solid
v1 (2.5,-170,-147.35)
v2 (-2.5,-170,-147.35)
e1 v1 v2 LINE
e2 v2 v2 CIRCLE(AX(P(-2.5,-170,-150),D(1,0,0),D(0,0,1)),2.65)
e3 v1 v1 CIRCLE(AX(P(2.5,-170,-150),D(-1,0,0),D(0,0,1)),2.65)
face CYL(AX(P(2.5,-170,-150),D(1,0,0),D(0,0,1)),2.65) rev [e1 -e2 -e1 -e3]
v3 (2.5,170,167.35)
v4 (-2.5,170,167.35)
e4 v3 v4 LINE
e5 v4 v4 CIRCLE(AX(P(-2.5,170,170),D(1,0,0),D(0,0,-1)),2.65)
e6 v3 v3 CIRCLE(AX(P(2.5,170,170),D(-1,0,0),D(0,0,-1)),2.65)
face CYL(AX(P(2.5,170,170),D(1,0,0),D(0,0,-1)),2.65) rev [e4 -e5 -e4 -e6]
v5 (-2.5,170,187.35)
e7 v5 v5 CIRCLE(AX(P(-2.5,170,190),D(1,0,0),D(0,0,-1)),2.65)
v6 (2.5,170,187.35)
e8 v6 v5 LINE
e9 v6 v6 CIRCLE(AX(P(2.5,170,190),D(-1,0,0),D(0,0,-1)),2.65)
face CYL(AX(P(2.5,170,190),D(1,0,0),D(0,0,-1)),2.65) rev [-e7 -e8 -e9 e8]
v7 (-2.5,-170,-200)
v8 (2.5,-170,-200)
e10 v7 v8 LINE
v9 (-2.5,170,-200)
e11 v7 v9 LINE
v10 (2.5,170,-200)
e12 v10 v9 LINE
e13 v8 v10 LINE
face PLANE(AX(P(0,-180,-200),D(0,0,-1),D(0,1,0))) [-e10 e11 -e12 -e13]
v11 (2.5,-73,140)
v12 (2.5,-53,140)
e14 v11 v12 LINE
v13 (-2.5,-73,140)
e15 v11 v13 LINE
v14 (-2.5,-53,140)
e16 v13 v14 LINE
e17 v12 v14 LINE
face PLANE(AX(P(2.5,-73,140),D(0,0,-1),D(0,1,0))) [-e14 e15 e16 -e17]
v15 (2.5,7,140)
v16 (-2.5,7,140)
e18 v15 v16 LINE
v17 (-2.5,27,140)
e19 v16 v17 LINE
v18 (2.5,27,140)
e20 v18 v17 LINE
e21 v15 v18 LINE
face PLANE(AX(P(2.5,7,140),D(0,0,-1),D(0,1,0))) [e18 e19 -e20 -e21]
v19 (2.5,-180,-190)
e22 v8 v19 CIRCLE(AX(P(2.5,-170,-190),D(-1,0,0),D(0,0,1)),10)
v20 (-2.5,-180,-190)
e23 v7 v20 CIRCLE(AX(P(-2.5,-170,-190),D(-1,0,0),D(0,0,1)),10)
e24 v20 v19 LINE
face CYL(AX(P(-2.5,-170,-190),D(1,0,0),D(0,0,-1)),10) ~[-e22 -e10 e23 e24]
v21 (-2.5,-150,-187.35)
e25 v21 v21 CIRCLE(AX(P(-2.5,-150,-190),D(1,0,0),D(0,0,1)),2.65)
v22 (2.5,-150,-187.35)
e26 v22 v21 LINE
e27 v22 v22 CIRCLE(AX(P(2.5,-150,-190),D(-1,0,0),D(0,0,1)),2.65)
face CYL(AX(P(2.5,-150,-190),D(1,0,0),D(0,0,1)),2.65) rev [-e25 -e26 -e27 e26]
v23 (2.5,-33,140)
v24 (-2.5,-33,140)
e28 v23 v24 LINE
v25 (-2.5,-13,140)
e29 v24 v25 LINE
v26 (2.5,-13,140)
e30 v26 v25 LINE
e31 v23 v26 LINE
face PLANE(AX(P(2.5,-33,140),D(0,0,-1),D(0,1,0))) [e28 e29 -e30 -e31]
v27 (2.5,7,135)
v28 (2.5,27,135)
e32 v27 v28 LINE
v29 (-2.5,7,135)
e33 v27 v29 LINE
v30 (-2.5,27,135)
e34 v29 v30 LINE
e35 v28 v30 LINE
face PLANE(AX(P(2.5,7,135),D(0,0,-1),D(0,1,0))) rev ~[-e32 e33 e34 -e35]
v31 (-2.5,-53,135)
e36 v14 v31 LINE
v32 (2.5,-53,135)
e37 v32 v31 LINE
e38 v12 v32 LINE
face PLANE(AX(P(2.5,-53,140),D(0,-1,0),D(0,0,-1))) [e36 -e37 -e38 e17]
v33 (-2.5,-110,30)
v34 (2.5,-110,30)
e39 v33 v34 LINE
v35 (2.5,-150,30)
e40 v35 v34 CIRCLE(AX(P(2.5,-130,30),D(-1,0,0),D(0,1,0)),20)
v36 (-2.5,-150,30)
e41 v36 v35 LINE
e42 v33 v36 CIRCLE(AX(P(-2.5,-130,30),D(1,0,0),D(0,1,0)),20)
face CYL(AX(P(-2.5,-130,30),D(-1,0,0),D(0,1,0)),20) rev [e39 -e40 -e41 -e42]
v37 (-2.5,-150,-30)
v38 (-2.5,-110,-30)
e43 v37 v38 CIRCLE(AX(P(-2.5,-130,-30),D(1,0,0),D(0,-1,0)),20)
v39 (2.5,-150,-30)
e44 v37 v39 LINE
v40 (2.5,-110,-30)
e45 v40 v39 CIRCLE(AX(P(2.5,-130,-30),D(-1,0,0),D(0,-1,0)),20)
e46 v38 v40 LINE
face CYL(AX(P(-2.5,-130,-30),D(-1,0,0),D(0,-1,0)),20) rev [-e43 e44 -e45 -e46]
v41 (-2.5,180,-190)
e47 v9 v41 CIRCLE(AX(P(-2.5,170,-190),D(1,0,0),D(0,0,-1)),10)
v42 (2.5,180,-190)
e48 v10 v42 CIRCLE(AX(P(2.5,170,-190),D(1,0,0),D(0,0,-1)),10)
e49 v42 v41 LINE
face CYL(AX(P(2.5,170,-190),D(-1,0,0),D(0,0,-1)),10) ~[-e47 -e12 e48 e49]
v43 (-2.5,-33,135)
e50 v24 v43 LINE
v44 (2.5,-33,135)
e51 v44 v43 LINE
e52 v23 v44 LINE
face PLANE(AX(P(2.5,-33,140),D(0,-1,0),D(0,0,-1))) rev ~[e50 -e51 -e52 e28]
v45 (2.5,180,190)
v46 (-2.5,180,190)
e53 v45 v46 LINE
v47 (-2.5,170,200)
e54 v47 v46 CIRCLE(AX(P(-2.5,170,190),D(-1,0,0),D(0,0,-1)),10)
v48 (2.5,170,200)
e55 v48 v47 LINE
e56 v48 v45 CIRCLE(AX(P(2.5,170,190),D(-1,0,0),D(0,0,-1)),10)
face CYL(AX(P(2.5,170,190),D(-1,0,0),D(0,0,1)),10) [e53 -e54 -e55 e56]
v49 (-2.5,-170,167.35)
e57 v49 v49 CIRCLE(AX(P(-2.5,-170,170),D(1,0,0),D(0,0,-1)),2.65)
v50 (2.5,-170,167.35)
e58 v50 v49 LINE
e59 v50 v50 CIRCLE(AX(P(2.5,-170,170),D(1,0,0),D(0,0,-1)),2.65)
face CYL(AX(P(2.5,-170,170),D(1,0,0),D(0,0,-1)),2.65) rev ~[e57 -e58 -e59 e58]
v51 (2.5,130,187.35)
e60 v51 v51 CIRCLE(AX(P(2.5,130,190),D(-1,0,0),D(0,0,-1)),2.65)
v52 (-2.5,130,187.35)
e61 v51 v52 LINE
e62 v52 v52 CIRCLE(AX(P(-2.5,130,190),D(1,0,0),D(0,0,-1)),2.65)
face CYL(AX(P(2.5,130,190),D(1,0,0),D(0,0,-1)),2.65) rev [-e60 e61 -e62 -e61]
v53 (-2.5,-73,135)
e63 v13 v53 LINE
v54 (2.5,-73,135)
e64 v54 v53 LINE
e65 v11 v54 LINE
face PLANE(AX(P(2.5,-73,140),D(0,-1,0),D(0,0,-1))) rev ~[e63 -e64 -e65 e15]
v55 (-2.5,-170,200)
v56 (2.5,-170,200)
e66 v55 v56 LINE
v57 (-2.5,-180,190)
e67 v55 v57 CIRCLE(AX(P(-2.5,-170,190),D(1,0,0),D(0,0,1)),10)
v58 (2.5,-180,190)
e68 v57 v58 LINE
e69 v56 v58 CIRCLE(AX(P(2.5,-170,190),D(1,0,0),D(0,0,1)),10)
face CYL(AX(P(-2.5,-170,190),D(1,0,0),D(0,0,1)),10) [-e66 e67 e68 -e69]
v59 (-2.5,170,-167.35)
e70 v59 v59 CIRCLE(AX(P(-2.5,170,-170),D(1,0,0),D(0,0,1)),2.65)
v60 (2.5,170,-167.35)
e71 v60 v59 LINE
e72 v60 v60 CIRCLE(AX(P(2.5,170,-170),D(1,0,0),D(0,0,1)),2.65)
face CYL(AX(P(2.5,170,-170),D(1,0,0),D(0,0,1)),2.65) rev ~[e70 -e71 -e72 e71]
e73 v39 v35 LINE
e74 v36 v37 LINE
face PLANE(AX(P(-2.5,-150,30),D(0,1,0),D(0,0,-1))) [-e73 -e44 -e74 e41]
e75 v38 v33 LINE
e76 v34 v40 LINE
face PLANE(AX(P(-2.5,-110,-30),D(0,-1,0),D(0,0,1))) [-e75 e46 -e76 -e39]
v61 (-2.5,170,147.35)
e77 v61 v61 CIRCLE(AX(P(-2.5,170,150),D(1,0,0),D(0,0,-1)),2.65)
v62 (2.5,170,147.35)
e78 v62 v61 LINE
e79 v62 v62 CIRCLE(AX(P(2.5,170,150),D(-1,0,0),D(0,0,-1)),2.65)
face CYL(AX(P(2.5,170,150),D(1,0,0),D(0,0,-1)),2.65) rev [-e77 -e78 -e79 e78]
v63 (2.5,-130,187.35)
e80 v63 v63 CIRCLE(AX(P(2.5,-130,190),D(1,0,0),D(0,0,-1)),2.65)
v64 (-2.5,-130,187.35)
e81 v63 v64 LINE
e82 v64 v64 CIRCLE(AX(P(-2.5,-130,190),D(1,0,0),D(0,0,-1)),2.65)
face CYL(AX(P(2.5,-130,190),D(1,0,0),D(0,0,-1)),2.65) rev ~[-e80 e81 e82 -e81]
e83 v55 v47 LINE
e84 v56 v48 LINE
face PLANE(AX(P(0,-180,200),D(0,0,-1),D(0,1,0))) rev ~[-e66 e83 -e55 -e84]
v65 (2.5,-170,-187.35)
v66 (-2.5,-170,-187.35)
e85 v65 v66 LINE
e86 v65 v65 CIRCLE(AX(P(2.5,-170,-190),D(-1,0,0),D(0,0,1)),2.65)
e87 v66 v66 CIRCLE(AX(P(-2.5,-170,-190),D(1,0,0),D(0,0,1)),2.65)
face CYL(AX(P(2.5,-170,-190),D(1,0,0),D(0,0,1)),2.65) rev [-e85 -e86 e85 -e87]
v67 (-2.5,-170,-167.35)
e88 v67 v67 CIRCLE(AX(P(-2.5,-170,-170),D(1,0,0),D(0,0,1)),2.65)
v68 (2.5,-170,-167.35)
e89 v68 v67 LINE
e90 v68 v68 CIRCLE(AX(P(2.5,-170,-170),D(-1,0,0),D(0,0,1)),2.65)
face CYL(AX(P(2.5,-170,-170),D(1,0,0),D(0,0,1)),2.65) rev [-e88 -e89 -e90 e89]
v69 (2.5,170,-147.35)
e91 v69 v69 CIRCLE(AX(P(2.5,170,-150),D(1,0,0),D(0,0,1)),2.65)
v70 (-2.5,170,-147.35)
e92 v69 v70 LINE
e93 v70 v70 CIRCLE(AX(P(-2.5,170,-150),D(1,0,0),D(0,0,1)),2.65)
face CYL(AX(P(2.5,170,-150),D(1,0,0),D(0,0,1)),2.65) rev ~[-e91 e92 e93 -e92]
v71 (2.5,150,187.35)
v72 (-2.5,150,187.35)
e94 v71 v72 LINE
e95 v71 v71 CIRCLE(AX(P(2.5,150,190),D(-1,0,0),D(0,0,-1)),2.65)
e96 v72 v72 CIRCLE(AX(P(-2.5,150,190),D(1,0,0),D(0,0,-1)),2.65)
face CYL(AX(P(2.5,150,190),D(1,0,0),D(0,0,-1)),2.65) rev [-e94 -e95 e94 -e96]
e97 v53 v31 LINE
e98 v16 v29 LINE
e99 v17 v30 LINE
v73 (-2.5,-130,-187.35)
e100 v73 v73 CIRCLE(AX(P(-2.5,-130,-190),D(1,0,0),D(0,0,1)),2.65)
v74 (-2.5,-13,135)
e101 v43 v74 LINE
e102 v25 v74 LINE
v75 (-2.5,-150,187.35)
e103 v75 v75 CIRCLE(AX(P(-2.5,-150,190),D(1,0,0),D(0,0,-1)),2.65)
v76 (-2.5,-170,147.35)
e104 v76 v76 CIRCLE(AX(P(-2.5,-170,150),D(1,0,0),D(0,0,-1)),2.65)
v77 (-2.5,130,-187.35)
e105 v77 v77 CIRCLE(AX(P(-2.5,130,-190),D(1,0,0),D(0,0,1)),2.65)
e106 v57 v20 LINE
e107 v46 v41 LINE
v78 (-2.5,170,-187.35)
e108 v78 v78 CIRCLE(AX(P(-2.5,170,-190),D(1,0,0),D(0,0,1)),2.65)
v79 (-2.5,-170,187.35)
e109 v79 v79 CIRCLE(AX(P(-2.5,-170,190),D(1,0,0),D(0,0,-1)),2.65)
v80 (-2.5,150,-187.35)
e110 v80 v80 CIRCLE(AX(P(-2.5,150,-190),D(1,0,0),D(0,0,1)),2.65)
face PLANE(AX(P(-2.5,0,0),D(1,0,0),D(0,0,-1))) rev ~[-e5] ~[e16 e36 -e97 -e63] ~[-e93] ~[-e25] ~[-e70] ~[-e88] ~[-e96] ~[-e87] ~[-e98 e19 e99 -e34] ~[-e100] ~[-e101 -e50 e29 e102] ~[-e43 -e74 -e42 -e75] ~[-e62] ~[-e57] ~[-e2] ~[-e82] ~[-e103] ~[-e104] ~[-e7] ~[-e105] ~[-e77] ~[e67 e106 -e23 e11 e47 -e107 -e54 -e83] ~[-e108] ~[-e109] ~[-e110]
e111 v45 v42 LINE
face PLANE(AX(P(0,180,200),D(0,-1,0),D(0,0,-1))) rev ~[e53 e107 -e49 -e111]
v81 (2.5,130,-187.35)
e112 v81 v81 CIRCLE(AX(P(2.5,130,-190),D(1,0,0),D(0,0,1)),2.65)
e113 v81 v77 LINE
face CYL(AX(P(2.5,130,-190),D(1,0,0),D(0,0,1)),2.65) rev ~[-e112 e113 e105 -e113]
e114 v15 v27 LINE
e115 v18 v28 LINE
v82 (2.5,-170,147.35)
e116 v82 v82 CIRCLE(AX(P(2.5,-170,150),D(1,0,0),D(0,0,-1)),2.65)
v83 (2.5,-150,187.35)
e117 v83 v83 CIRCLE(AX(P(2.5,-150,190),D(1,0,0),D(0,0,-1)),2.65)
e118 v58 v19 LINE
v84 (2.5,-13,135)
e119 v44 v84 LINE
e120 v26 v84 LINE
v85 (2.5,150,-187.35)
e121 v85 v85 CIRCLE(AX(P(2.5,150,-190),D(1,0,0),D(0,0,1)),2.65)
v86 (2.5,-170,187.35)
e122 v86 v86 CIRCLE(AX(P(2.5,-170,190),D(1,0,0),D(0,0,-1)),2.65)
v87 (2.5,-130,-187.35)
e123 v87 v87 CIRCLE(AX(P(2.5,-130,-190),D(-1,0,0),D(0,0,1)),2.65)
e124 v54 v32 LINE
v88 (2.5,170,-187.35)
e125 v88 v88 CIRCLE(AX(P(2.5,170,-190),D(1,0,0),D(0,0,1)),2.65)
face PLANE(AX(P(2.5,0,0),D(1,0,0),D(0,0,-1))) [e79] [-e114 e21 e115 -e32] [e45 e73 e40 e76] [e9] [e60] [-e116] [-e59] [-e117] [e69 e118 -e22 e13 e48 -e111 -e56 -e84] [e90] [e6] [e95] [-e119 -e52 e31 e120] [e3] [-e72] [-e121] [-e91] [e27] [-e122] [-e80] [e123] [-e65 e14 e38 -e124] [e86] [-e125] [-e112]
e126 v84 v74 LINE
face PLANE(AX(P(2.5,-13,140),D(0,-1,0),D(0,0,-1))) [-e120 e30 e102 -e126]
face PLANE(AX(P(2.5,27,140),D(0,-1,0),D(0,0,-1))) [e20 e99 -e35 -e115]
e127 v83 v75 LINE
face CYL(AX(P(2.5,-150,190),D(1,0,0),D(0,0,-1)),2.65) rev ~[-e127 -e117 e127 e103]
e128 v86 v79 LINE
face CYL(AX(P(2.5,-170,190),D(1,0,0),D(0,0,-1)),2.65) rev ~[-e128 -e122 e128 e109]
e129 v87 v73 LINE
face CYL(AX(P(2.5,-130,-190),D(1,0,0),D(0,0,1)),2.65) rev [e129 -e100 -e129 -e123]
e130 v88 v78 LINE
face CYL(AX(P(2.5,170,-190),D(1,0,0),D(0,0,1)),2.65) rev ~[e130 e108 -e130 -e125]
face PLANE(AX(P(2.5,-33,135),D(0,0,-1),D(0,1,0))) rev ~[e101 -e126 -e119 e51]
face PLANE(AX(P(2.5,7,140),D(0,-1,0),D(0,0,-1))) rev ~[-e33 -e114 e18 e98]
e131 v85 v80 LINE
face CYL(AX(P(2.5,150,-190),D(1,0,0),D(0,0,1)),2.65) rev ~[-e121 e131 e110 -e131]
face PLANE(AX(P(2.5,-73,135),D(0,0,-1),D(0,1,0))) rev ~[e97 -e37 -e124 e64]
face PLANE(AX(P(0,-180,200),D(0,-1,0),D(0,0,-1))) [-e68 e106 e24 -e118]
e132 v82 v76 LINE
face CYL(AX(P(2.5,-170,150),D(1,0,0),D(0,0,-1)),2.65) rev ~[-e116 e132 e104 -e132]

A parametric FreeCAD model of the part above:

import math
import FreeCAD as App
import Part
import Sketcher


def edges_at(feature, points):
    """Names of the edges that pass closest to the given points."""
    edges = feature.Shape.Edges
    near = lambda p: min(range(len(edges)), key=lambda i: edges[i].distToShape(Part.Vertex(*p))[0])
    return sorted({f"Edge{near(p) + 1}" for p in points})

doc = App.newDocument("Part")
body = doc.addObject("PartDesign::Body", "Body")

sketch1 = body.newObject("Sketcher::SketchObject", "Sketch")
sketch1.AttachmentSupport = (doc.getObject("YZ_Plane"), [""])
sketch1.MapMode = "FlatFace"
sketch1.addGeometry(Part.LineSegment(App.Vector(180, 200, 0), App.Vector(-180, 200, 0)), False)
sketch1.addGeometry(Part.LineSegment(App.Vector(-180, 200, 0), App.Vector(-180, -200, 0)), False)
sketch1.addGeometry(Part.LineSegment(App.Vector(-180, -200, 0), App.Vector(180, -200, 0)), False)
sketch1.addGeometry(Part.LineSegment(App.Vector(180, -200, 0), App.Vector(180, 200, 0)), False)
sketch1.addConstraint(Sketcher.Constraint("Coincident", 0, 2, 1, 1))
sketch1.addConstraint(Sketcher.Constraint("Coincident", 1, 2, 2, 1))
sketch1.addConstraint(Sketcher.Constraint("Coincident", 2, 2, 3, 1))
sketch1.addConstraint(Sketcher.Constraint("Coincident", 3, 2, 0, 1))
sketch1.addConstraint(Sketcher.Constraint("Horizontal", 0))
sketch1.addConstraint(Sketcher.Constraint("Vertical", 1))
sketch1.addConstraint(Sketcher.Constraint("Horizontal", 2))
sketch1.addConstraint(Sketcher.Constraint("Vertical", 3))
sketch1.addConstraint(Sketcher.Constraint("Symmetric", 0, 2, 2, 2, -1, 1))
sketch1.addConstraint(Sketcher.Constraint("DistanceX", 0, 2, 0, 1, 360.0))
sketch1.addConstraint(Sketcher.Constraint("DistanceY", 1, 2, 1, 1, 400.0))
pad1 = body.newObject("PartDesign::Pad", "Pad")
pad1.Profile = sketch1
pad1.Length = 5
pad1.Midplane = True
doc.recompute()

fillet = body.newObject("PartDesign::Fillet", "Fillet")
fillet.Base = (pad1, edges_at(pad1, [
    (0, -180, -200),
    (0, -180, 200),
    (0, 180, 200),
    (0, 180, -200),
]))
fillet.Radius = 10

sketch2 = body.newObject("Sketcher::SketchObject", "Sketch001")
sketch2.AttachmentSupport = (doc.getObject("YZ_Plane"), [""])
sketch2.MapMode = "FlatFace"
sketch2.AttachmentOffset = App.Placement(App.Vector(0, 0, 2.5), App.Rotation())
sketch2.addGeometry(Part.Circle(App.Vector(-170, 190, 0), App.Vector(0, 0, 1), 2.65), False)
sketch2.addGeometry(Part.Circle(App.Vector(-170, 170, 0), App.Vector(0, 0, 1), 2.65), False)
sketch2.addGeometry(Part.Circle(App.Vector(-170, 150, 0), App.Vector(0, 0, 1), 2.65), False)
sketch2.addGeometry(Part.Circle(App.Vector(-150, 190, 0), App.Vector(0, 0, 1), 2.65), False)
sketch2.addGeometry(Part.Circle(App.Vector(-130, 190, 0), App.Vector(0, 0, 1), 2.65), False)
sketch2.addConstraint(Sketcher.Constraint("Equal", 0, 1))
sketch2.addConstraint(Sketcher.Constraint("Equal", 1, 2))
sketch2.addConstraint(Sketcher.Constraint("Equal", 2, 3))
sketch2.addConstraint(Sketcher.Constraint("Equal", 3, 4))
sketch2.addConstraint(Sketcher.Constraint("Horizontal", 0, 3, 3, 3))
sketch2.addConstraint(Sketcher.Constraint("Horizontal", 3, 3, 4, 3))
sketch2.addConstraint(Sketcher.Constraint("Vertical", 0, 3, 1, 3))
sketch2.addConstraint(Sketcher.Constraint("Vertical", 1, 3, 2, 3))
sketch2.addConstraint(Sketcher.Constraint("Diameter", 0, 5.3))
sketch2.addConstraint(Sketcher.Constraint("DistanceX", 0, 3, -1, 1, 170.0))
sketch2.addConstraint(Sketcher.Constraint("DistanceY", -1, 1, 0, 3, 190.0))
sketch2.addConstraint(Sketcher.Constraint("DistanceY", -1, 1, 1, 3, 170.0))
sketch2.addConstraint(Sketcher.Constraint("DistanceY", -1, 1, 2, 3, 150.0))
sketch2.addConstraint(Sketcher.Constraint("DistanceX", 3, 3, -1, 1, 150.0))
sketch2.addConstraint(Sketcher.Constraint("DistanceX", 4, 3, -1, 1, 130.0))
pocket1 = body.newObject("PartDesign::Pocket", "Pocket")
pocket1.Profile = sketch2
pocket1.Type = "ThroughAll"
doc.recompute()

mirrored = body.newObject("PartDesign::Mirrored", "Mirrored")
mirrored.Originals = [pocket1]
mirrored.MirrorPlane = (doc.getObject("XY_Plane"), [""])
body.Tip = mirrored
doc.recompute()

mirrored2 = body.newObject("PartDesign::Mirrored", "Mirrored001")
mirrored2.Originals = [pocket1]
mirrored2.MirrorPlane = (doc.getObject("XZ_Plane"), [""])
body.Tip = mirrored2

sketch3 = body.newObject("Sketcher::SketchObject", "Sketch002")
sketch3.AttachmentSupport = (doc.getObject("YZ_Plane"), [""])
sketch3.MapMode = "FlatFace"
sketch3.AttachmentOffset = App.Placement(App.Vector(0, 0, 2.5), App.Rotation())
sketch3.addGeometry(Part.Circle(App.Vector(170, -190, 0), App.Vector(0, 0, 1), 2.65), False)
sketch3.addGeometry(Part.Circle(App.Vector(170, -170, 0), App.Vector(0, 0, 1), 2.65), False)
sketch3.addGeometry(Part.Circle(App.Vector(170, -150, 0), App.Vector(0, 0, 1), 2.65), False)
sketch3.addGeometry(Part.Circle(App.Vector(150, -190, 0), App.Vector(0, 0, 1), 2.65), False)
sketch3.addGeometry(Part.Circle(App.Vector(130, -190, 0), App.Vector(0, 0, 1), 2.65), False)
sketch3.addConstraint(Sketcher.Constraint("Equal", 0, 1))
sketch3.addConstraint(Sketcher.Constraint("Equal", 1, 2))
sketch3.addConstraint(Sketcher.Constraint("Equal", 2, 3))
sketch3.addConstraint(Sketcher.Constraint("Equal", 3, 4))
sketch3.addConstraint(Sketcher.Constraint("Horizontal", 0, 3, 3, 3))
sketch3.addConstraint(Sketcher.Constraint("Horizontal", 3, 3, 4, 3))
sketch3.addConstraint(Sketcher.Constraint("Vertical", 0, 3, 1, 3))
sketch3.addConstraint(Sketcher.Constraint("Vertical", 1, 3, 2, 3))
sketch3.addConstraint(Sketcher.Constraint("Diameter", 0, 5.3))
sketch3.addConstraint(Sketcher.Constraint("DistanceX", -1, 1, 0, 3, 170.0))
sketch3.addConstraint(Sketcher.Constraint("DistanceY", 0, 3, -1, 1, 190.0))
sketch3.addConstraint(Sketcher.Constraint("DistanceY", 1, 3, -1, 1, 170.0))
sketch3.addConstraint(Sketcher.Constraint("DistanceY", 2, 3, -1, 1, 150.0))
sketch3.addConstraint(Sketcher.Constraint("DistanceX", -1, 1, 3, 3, 150.0))
sketch3.addConstraint(Sketcher.Constraint("DistanceX", -1, 1, 4, 3, 130.0))
pocket2 = body.newObject("PartDesign::Pocket", "Pocket001")
pocket2.Profile = sketch3
pocket2.Type = "ThroughAll"

sketch4 = body.newObject("Sketcher::SketchObject", "Sketch003")
sketch4.AttachmentSupport = (doc.getObject("YZ_Plane"), [""])
sketch4.MapMode = "FlatFace"
sketch4.AttachmentOffset = App.Placement(App.Vector(0, 0, 2.5), App.Rotation())
sketch4.addGeometry(Part.LineSegment(App.Vector(-53, 140, 0), App.Vector(-73, 140, 0)), False)
sketch4.addGeometry(Part.LineSegment(App.Vector(-73, 140, 0), App.Vector(-73, 135, 0)), False)
sketch4.addGeometry(Part.LineSegment(App.Vector(-73, 135, 0), App.Vector(-53, 135, 0)), False)
sketch4.addGeometry(Part.LineSegment(App.Vector(-53, 135, 0), App.Vector(-53, 140, 0)), False)
sketch4.addConstraint(Sketcher.Constraint("Coincident", 0, 2, 1, 1))
sketch4.addConstraint(Sketcher.Constraint("Coincident", 1, 2, 2, 1))
sketch4.addConstraint(Sketcher.Constraint("Coincident", 2, 2, 3, 1))
sketch4.addConstraint(Sketcher.Constraint("Coincident", 3, 2, 0, 1))
sketch4.addConstraint(Sketcher.Constraint("Horizontal", 0))
sketch4.addConstraint(Sketcher.Constraint("Vertical", 1))
sketch4.addConstraint(Sketcher.Constraint("Horizontal", 2))
sketch4.addConstraint(Sketcher.Constraint("Vertical", 3))
sketch4.addConstraint(Sketcher.Constraint("DistanceX", 0, 2, 0, 1, 20.0))
sketch4.addConstraint(Sketcher.Constraint("DistanceY", 1, 2, 1, 1, 5.0))
sketch4.addConstraint(Sketcher.Constraint("DistanceX", 0, 2, -1, 1, 73.0))
sketch4.addConstraint(Sketcher.Constraint("DistanceY", -1, 1, 0, 2, 140.0))
pocket3 = body.newObject("PartDesign::Pocket", "Pocket002")
pocket3.Profile = sketch4
pocket3.Type = "ThroughAll"
doc.recompute()

linearpattern = body.newObject("PartDesign::LinearPattern", "LinearPattern")
linearpattern.Originals = [pocket3]
linearpattern.Direction = (doc.getObject("Y_Axis"), [""])
linearpattern.Mode = "offset"
linearpattern.Offset = 40
linearpattern.Occurrences = 3
body.Tip = linearpattern

sketch5 = body.newObject("Sketcher::SketchObject", "Sketch004")
sketch5.AttachmentSupport = (doc.getObject("YZ_Plane"), [""])
sketch5.MapMode = "FlatFace"
sketch5.AttachmentOffset = App.Placement(App.Vector(0, 0, -2.5), App.Rotation())
sketch5.addGeometry(Part.LineSegment(App.Vector(-150, -30, 0), App.Vector(-150, 30, 0)), False)
sketch5.addGeometry(Part.ArcOfCircle(Part.Circle(App.Vector(-130, 30, 0), App.Vector(0, 0, 1), 20), math.radians(0), math.radians(180)), False)
sketch5.addGeometry(Part.LineSegment(App.Vector(-110, 30, 0), App.Vector(-110, -30, 0)), False)
sketch5.addGeometry(Part.ArcOfCircle(Part.Circle(App.Vector(-130, -30, 0), App.Vector(0, 0, 1), 20), math.radians(180), math.radians(360)), False)
sketch5.addConstraint(Sketcher.Constraint("Tangent", 0, 2, 1, 2))
sketch5.addConstraint(Sketcher.Constraint("Tangent", 1, 1, 2, 1))
sketch5.addConstraint(Sketcher.Constraint("Tangent", 2, 2, 3, 2))
sketch5.addConstraint(Sketcher.Constraint("Tangent", 3, 1, 0, 1))
sketch5.addConstraint(Sketcher.Constraint("Vertical", 0))
sketch5.addConstraint(Sketcher.Constraint("Vertical", 2))
sketch5.addConstraint(Sketcher.Constraint("Radius", 1, 20.0))
sketch5.addConstraint(Sketcher.Constraint("DistanceY", 0, 1, 0, 2, 60.0))
sketch5.addConstraint(Sketcher.Constraint("DistanceX", 1, 3, -1, 1, 130.0))
sketch5.addConstraint(Sketcher.Constraint("DistanceY", -1, 1, 1, 3, 30.0))
pocket4 = body.newObject("PartDesign::Pocket", "Pocket003")
pocket4.Profile = sketch5
pocket4.Type = "ThroughAll"
pocket4.Reversed = True

doc.recompute()
